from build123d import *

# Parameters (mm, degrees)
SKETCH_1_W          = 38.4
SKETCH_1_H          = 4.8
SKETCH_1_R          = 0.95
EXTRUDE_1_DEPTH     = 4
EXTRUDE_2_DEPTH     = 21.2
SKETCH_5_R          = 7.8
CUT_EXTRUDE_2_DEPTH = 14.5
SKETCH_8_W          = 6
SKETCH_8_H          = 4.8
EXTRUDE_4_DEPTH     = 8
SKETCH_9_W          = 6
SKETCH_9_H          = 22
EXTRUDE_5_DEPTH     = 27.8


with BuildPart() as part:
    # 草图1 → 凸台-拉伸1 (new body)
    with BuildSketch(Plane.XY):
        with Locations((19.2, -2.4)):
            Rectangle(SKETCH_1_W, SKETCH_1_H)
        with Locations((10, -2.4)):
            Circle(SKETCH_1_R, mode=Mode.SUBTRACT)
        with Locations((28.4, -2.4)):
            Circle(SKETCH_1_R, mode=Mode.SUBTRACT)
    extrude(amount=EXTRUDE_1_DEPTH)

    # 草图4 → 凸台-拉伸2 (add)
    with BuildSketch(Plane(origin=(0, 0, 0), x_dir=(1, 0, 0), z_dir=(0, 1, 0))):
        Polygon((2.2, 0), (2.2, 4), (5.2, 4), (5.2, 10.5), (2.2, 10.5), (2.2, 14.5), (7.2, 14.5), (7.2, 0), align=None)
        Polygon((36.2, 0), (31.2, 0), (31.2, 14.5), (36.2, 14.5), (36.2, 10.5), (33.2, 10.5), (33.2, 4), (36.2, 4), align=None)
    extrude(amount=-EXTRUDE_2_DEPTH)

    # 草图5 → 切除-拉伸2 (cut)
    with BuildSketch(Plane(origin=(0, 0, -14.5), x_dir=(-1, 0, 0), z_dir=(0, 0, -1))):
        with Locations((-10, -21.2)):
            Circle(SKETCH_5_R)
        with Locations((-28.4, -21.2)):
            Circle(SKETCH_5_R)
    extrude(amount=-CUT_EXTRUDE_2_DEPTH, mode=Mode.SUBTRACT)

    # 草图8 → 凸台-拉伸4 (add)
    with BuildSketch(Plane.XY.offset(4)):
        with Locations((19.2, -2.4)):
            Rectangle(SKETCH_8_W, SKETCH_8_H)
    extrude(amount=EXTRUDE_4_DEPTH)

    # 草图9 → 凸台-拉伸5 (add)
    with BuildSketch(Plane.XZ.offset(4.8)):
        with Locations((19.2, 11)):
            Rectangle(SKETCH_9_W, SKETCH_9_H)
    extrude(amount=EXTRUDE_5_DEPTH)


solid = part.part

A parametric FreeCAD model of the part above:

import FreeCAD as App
import Part
import Sketcher


def add_polygon(sketch, points):
    """Adds a closed chain of lines whose ends are joined by coincident constraints."""
    first, n = sketch.GeometryCount, len(points)
    for a, b in zip(points, points[1:] + points[:1]):
        sketch.addGeometry(Part.LineSegment(App.Vector(*a, 0), App.Vector(*b, 0)), False)
    for i in range(n):
        sketch.addConstraint(Sketcher.Constraint("Coincident", first + i, 2, first + (i + 1) % n, 1))

doc = App.newDocument("Part")
body = doc.addObject("PartDesign::Body", "Body")

# Sketch on XY plane
sketch1 = doc.addObject("Sketcher::SketchObject", "Sketch")
body.addObject(sketch1)
sketch1.AttachmentSupport = (doc.XY_Plane, [""])
sketch1.MapMode = "FlatFace"
add_polygon(sketch1, [(0, 0), (0, -4.8), (38.4, -4.8), (38.4, 0)])  # lines 0-3
sketch1.addGeometry(Part.Circle(App.Vector(10, -2.4, 0), App.Vector(0, 0, 1), 0.9), False)  # 4
sketch1.addGeometry(Part.Circle(App.Vector(28.4, -2.4, 0), App.Vector(0, 0, 1), 0.9), False)  # 5
sketch1.addConstraint([
    Sketcher.Constraint("Vertical", 0),
    Sketcher.Constraint("Horizontal", 1),
    Sketcher.Constraint("Vertical", 2),
    Sketcher.Constraint("Horizontal", 3),
    Sketcher.Constraint("Coincident", 3, 2, -1, 1),
    Sketcher.Constraint("Equal", 4, 5),
    Sketcher.Constraint("Horizontal", 4, 3, 5, 3),
    Sketcher.Constraint("Diameter", 4, 1.9),
    Sketcher.Constraint("DistanceX", 1, 1, 1, 2, 38.4),
    Sketcher.Constraint("DistanceY", 0, 2, 0, 1, 4.8),
    Sketcher.Constraint("DistanceX", -1, 1, 4, 3, 10.0),
    Sketcher.Constraint("DistanceX", 5, 3, 1, 2, 10.0),
    Sketcher.Constraint("DistanceY", 4, 3, -1, 1, 2.4),
])
pad1 = doc.addObject("PartDesign::Pad", "Pad")
body.addObject(pad1)
pad1.Profile = sketch1
pad1.Length = 4

# Sketch on XZ plane
sketch2 = doc.addObject("Sketcher::SketchObject", "Sketch001")
body.addObject(sketch2)
sketch2.AttachmentSupport = (doc.XZ_Plane, [""])
sketch2.MapMode = "FlatFace"
add_polygon(sketch2, [(2.2, -4), (2.2, 0), (7.2, 0), (7.2, -14.5), (2.2, -14.5), (2.2, -10.5), (5.2, -10.5), (5.2, -4)])  # lines 0-7
add_polygon(sketch2, [(31.2, 0), (36.2, 0), (36.2, -4), (33.2, -4), (33.2, -10.5), (36.2, -10.5), (36.2, -14.5), (31.2, -14.5)])  # lines 8-15
sketch2.addConstraint([
    Sketcher.Constraint("Vertical", 0),
    Sketcher.Constraint("Horizontal", 1),
    Sketcher.Constraint("Vertical", 2),
    Sketcher.Constraint("Horizontal", 3),
    Sketcher.Constraint("Vertical", 4),
    Sketcher.Constraint("Horizontal", 5),
    Sketcher.Constraint("Vertical", 6),
    Sketcher.Constraint("Horizontal", 7),
    Sketcher.Constraint("Horizontal", 8),
    Sketcher.Constraint("Vertical", 9),
    Sketcher.Constraint("Horizontal", 10),
    Sketcher.Constraint("Vertical", 11),
    Sketcher.Constraint("Horizontal", 12),
    Sketcher.Constraint("Vertical", 13),
    Sketcher.Constraint("Horizontal", 14),
    Sketcher.Constraint("Vertical", 15),
    Sketcher.Constraint("PointOnObject", 0, 2, -1),
    Sketcher.Constraint("PointOnObject", 8, 2, -1),
    Sketcher.Constraint("Horizontal", 7, 2, 9, 2),
    Sketcher.Constraint("Horizontal", 5, 2, 11, 2),
    Sketcher.Constraint("Horizontal", 3, 2, 13, 2),
    Sketcher.Constraint("Vertical", 0, 2, 3, 2),
    Sketcher.Constraint("Vertical", 9, 2, 12, 2),
    Sketcher.Constraint("Equal", 3, 8),
    Sketcher.Constraint("Equal", 7, 10),
    Sketcher.Constraint("Equal", 0, 4),
    Sketcher.Constraint("DistanceX", 1, 1, 1, 2, 5.0),
    Sketcher.Constraint("DistanceX", 5, 1, 5, 2, 3.0),
    Sketcher.Constraint("DistanceY", 0, 1, 0, 2, 4.0),
    Sketcher.Constraint("DistanceY", 2, 2, 2, 1, 14.5),
    Sketcher.Constraint("DistanceX", 1, 2, 8, 2, 29.0),
    Sketcher.Constraint("DistanceX", -1, 1, 0, 2, 2.2),
])
pad2 = doc.addObject("PartDesign::Pad", "Pad001")
body.addObject(pad2)
pad2.Profile = sketch2
pad2.Length = 21.2

# Sketch on XY plane
sketch3 = doc.addObject("Sketcher::SketchObject", "Sketch002")
body.addObject(sketch3)
sketch3.AttachmentSupport = (doc.XY_Plane, [""])
sketch3.MapMode = "FlatFace"
sketch3.AttachmentOffset = App.Placement(App.Vector(0, 0, -14.5), App.Rotation())
sketch3.addGeometry([
    Part.Circle(App.Vector(10, -21, 0), App.Vector(0, 0, 1), 8),
    Part.Circle(App.Vector(28, -21, 0), App.Vector(0, 0, 1), 8),
], False)
sketch3.addConstraint([
    Sketcher.Constraint("Equal", 0, 1),
    Sketcher.Constraint("Horizontal", 0, 3, 1, 3),
    Sketcher.Constraint("Diameter", 0, 15.6),
    Sketcher.Constraint("DistanceX", -1, 1, 0, 3, 10.0),
    Sketcher.Constraint("DistanceY", 0, 3, -1, 1, 21.2),
    Sketcher.Constraint("DistanceX", -1, 1, 1, 3, 28.4),
])
pocket1 = doc.addObject("PartDesign::Pocket", "Pocket")
body.addObject(pocket1)
pocket1.Profile = sketch3
pocket1.Length = 14.5
pocket1.Reversed = True

# Sketch on XY plane
sketch4 = doc.addObject("Sketcher::SketchObject", "Sketch003")
body.addObject(sketch4)
sketch4.AttachmentSupport = (doc.XY_Plane, [""])
sketch4.MapMode = "FlatFace"
sketch4.AttachmentOffset = App.Placement(App.Vector(0, 0, 4), App.Rotation())
add_polygon(sketch4, [(16.2, 0), (16.2, -4.8), (22.2, -4.8), (22.2, 0)])  # lines 0-3
sketch4.addConstraint([
    Sketcher.Constraint("Vertical", 0),
    Sketcher.Constraint("Horizontal", 1),
    Sketcher.Constraint("Vertical", 2),
    Sketcher.Constraint("Horizontal", 3),
    Sketcher.Constraint("PointOnObject", 2, 2, -1),
    Sketcher.Constraint("DistanceX", 1, 1, 1, 2, 6.0),
    Sketcher.Constraint("DistanceY", 0, 2, 0, 1, 4.8),
    Sketcher.Constraint("DistanceX", -1, 1, 0, 2, 16.2),
])
pad3 = doc.addObject("PartDesign::Pad", "Pad002")
body.addObject(pad3)
pad3.Profile = sketch4
pad3.Length = 8

# Sketch on XZ plane
sketch5 = doc.addObject("Sketcher::SketchObject", "Sketch004")
body.addObject(sketch5)
sketch5.AttachmentSupport = (doc.XZ_Plane, [""])
sketch5.MapMode = "FlatFace"
sketch5.AttachmentOffset = App.Placement(App.Vector(0, 0, 4.8), App.Rotation())
add_polygon(sketch5, [(16, 22), (16, 0), (22, 0), (22, 22)])  # lines 0-3
sketch5.addConstraint([
    Sketcher.Constraint("Vertical", 0),
    Sketcher.Constraint("Horizontal", 1),
    Sketcher.Constraint("Vertical", 2),
    Sketcher.Constraint("Horizontal", 3),
    Sketcher.Constraint("PointOnObject", 0, 2, -1),
    Sketcher.Constraint("DistanceX", 1, 1, 1, 2, 6.0),
    Sketcher.Constraint("DistanceY", 0, 2, 0, 1, 22.0),
    Sketcher.Constraint("DistanceX", -1, 1, 0, 2, 16.2),
])
pad4 = doc.addObject("PartDesign::Pad", "Pad003")
body.addObject(pad4)
pad4.Profile = sketch5
pad4.Length = 27.8

doc.recompute()
